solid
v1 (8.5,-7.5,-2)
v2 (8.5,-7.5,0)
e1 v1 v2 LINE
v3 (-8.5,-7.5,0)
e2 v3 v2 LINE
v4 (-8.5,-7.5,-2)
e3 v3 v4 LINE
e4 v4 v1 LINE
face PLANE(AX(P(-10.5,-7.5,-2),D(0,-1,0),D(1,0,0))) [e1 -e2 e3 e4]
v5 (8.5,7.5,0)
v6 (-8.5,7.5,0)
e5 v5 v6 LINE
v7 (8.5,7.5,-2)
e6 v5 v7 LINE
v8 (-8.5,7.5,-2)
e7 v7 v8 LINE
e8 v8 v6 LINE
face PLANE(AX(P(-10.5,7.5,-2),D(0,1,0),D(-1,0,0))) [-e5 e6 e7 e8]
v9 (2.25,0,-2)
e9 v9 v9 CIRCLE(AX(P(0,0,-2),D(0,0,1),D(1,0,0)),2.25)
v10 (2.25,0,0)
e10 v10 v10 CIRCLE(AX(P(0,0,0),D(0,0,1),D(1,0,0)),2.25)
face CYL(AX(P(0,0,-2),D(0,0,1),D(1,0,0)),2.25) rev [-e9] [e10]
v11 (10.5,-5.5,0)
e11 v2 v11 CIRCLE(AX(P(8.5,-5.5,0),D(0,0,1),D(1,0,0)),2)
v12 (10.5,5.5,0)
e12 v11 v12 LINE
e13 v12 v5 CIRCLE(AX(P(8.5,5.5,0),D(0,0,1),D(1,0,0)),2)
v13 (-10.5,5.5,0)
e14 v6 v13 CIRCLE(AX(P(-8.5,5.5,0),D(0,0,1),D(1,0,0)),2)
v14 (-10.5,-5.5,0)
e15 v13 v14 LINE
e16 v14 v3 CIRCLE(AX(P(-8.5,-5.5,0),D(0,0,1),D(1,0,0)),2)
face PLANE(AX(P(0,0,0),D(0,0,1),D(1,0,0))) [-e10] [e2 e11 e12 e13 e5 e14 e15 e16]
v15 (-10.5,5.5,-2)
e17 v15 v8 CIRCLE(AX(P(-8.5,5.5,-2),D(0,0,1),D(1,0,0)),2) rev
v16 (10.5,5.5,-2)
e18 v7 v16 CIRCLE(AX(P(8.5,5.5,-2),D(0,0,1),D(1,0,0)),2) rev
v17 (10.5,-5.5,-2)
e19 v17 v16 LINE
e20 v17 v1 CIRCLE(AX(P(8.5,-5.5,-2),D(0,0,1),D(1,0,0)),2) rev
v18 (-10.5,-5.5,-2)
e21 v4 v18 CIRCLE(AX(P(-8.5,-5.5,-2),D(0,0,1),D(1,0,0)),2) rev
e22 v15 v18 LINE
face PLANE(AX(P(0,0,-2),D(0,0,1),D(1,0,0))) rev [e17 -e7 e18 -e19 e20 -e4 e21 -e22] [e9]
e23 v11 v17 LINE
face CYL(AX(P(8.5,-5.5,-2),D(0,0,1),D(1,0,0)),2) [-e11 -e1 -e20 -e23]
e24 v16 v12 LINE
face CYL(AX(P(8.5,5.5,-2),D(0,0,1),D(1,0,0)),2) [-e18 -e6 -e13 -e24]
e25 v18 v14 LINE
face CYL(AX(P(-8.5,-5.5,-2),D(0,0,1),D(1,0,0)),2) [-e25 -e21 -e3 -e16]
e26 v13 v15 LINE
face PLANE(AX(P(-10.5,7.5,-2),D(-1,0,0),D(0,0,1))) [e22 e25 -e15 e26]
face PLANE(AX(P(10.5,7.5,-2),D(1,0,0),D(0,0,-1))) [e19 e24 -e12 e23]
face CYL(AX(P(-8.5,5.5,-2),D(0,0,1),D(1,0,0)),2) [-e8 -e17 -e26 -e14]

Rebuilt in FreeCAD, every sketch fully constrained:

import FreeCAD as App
import Part
import Sketcher
from FreeCAD import Vector


def edges_at(feature, points):
    """Names of the edges that pass closest to the given points."""
    edges = feature.Shape.Edges
    near = lambda p: min(range(len(edges)), key=lambda i: edges[i].distToShape(Part.Vertex(*p))[0])
    return sorted({f"Edge{near(p) + 1}" for p in points})

doc = App.newDocument("Part")
body = doc.addObject("PartDesign::Body", "Body")

sketch1 = body.newObject("Sketcher::SketchObject", "Sketch")
sketch1.AttachmentSupport = (doc.getObject("XY_Plane"), [""])
sketch1.MapMode = "FlatFace"
sketch1.addGeometry([
    Part.LineSegment(Vector(-10, 8, 0), Vector(-10, -8, 0)),
    Part.LineSegment(Vector(-10, -8, 0), Vector(10, -8, 0)),
    Part.LineSegment(Vector(10, -8, 0), Vector(10, 8, 0)),
    Part.LineSegment(Vector(10, 8, 0), Vector(-10, 8, 0)),
], False)
sketch1.addConstraint([
    Sketcher.Constraint("Coincident", 0, 2, 1, 1),
    Sketcher.Constraint("Coincident", 1, 2, 2, 1),
    Sketcher.Constraint("Coincident", 2, 2, 3, 1),
    Sketcher.Constraint("Coincident", 3, 2, 0, 1),
    Sketcher.Constraint("Vertical", 0),
    Sketcher.Constraint("Horizontal", 1),
    Sketcher.Constraint("Vertical", 2),
    Sketcher.Constraint("Horizontal", 3),
    Sketcher.Constraint("Symmetric", 0, 2, 2, 2, -1, 1),
    Sketcher.Constraint("DistanceX", 1, 1, 1, 2, 21.0),
    Sketcher.Constraint("DistanceY", 0, 2, 0, 1, 15.0),
])
pad1 = body.newObject("PartDesign::Pad", "Pad")
pad1.Profile = sketch1
pad1.Length = 2
pad1.Reversed = True

sketch2 = body.newObject("Sketcher::SketchObject", "Sketch001")
sketch2.AttachmentSupport = (doc.getObject("XY_Plane"), [""])
sketch2.MapMode = "FlatFace"
sketch2.addGeometry(Part.Circle(Vector(0, 0, 0), Vector(0, 0, 1), 2.2), False)
sketch2.addConstraint([
    Sketcher.Constraint("Coincident", 0, 3, -1, 1),
    Sketcher.Constraint("Diameter", 0, 4.5),
])
pocket1 = body.newObject("PartDesign::Pocket", "Pocket")
pocket1.Profile = sketch2
pocket1.Type = "ThroughAll"
doc.recompute()

fillet = body.newObject("PartDesign::Fillet", "Fillet")
fillet.Base = (pocket1, edges_at(pocket1, [
    (10.5, -7.5, -1),
    (-10.5, -7.5, -1),
    (-10.5, 7.5, -1),
    (10.5, 7.5, -1),
]))
fillet.Radius = 2

doc.recompute()
